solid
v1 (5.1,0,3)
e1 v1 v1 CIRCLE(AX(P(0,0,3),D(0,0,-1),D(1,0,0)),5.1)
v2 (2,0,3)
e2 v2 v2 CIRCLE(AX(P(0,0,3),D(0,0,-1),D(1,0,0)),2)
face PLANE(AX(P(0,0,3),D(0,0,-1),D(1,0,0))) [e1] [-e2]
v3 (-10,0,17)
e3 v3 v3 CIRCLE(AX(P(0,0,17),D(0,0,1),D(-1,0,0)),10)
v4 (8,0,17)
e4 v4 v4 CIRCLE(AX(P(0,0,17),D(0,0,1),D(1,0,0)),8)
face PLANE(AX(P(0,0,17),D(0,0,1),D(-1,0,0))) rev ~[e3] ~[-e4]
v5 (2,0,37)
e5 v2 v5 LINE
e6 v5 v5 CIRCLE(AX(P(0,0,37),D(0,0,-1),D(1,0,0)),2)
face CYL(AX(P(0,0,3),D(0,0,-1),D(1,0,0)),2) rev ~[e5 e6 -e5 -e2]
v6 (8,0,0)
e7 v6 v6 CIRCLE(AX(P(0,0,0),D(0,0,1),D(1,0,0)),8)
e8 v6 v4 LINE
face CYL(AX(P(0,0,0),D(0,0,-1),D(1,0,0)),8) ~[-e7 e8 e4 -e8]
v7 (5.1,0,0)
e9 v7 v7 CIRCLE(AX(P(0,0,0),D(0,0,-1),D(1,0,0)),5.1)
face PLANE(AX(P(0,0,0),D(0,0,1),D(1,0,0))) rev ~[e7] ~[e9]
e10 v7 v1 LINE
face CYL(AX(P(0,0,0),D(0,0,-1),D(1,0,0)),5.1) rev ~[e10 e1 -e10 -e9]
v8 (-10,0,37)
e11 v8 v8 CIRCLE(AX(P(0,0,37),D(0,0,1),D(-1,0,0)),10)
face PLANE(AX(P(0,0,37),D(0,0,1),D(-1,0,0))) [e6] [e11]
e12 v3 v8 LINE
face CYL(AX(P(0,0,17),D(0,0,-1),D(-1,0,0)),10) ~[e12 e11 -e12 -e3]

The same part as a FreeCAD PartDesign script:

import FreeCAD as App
import Part
import Sketcher
from FreeCAD import Vector
Q = App.Units.Quantity

doc = App.newDocument("Part")
params = doc.addObject("Spreadsheet::Sheet", "Params")
for row, (alias, value) in enumerate([
    ("sketch1_diameter", "16 mm"),
    ("pad1_length", "17 mm"),
    ("sketch2_diameter", "20 mm"),
    ("pad2_length", "20 mm"),
    ("sketch3_diameter", "10.2 mm"),
    ("pocket1_length", "3 mm"),
    ("sketch4_diameter", "4 mm"),
    ("pocket2_length", "34 mm"),
], start=1):
    params.set(f"A{row}", alias)
    params.set(f"B{row}", "=" + value)
    params.setAlias(f"B{row}", alias)

body = doc.addObject("PartDesign::Body", "Body")

# Sketch on XY plane
sketch1 = doc.addObject("Sketcher::SketchObject", "Sketch")
body.addObject(sketch1)
sketch1.AttachmentSupport = (doc.XY_Plane, [""])
sketch1.MapMode = "FlatFace"
sketch1.addGeometry(Part.Circle(Vector(0, 0, 0), Vector(0, 0, 1), 8), False)
sketch1.addConstraint(Sketcher.Constraint("Coincident", 0, 3, -1, 1))
sketch1.addConstraint(Sketcher.Constraint("Diameter", 0, Q("16 mm")))
sketch1.setExpression("Constraints[1]", "Params.sketch1_diameter")
pad1 = doc.addObject("PartDesign::Pad", "Pad")
body.addObject(pad1)
pad1.Profile = sketch1
pad1.setExpression("Length", "Params.pad1_length")

# Sketch on XY plane
sketch2 = doc.addObject("Sketcher::SketchObject", "Sketch001")
body.addObject(sketch2)
sketch2.AttachmentSupport = (doc.XY_Plane, [""])
sketch2.MapMode = "FlatFace"
sketch2.AttachmentOffset = App.Placement(Vector(0, 0, 17), App.Rotation())
sketch2.addGeometry(Part.Circle(Vector(0, 0, 0), Vector(0, 0, 1), 10), False)
sketch2.addConstraint(Sketcher.Constraint("Coincident", 0, 3, -1, 1))
sketch2.addConstraint(Sketcher.Constraint("Diameter", 0, Q("20 mm")))
sketch2.setExpression("Constraints[1]", "Params.sketch2_diameter")
pad2 = doc.addObject("PartDesign::Pad", "Pad001")
body.addObject(pad2)
pad2.Profile = sketch2
pad2.setExpression("Length", "Params.pad2_length")

# Sketch on XY plane
sketch3 = doc.addObject("Sketcher::SketchObject", "Sketch002")
body.addObject(sketch3)
sketch3.AttachmentSupport = (doc.XY_Plane, [""])
sketch3.MapMode = "FlatFace"
sketch3.addGeometry(Part.Circle(Vector(0, 0, 0), Vector(0, 0, 1), 5), False)
sketch3.addConstraint(Sketcher.Constraint("Coincident", 0, 3, -1, 1))
sketch3.addConstraint(Sketcher.Constraint("Diameter", 0, Q("10.2 mm")))
sketch3.setExpression("Constraints[1]", "Params.sketch3_diameter")
pocket1 = doc.addObject("PartDesign::Pocket", "Pocket")
body.addObject(pocket1)
pocket1.Profile = sketch3
pocket1.setExpression("Length", "Params.pocket1_length")
pocket1.Reversed = True

# Sketch on XY plane
sketch4 = doc.addObject("Sketcher::SketchObject", "Sketch003")
body.addObject(sketch4)
sketch4.AttachmentSupport = (doc.XY_Plane, [""])
sketch4.MapMode = "FlatFace"
sketch4.AttachmentOffset = App.Placement(Vector(0, 0, 3), App.Rotation())
sketch4.addGeometry(Part.Circle(Vector(0, 0, 0), Vector(0, 0, 1), 2), False)
sketch4.addConstraint(Sketcher.Constraint("Coincident", 0, 3, -1, 1))
sketch4.addConstraint(Sketcher.Constraint("Diameter", 0, Q("4 mm")))
sketch4.setExpression("Constraints[1]", "Params.sketch4_diameter")
pocket2 = doc.addObject("PartDesign::Pocket", "Pocket001")
body.addObject(pocket2)
pocket2.Profile = sketch4
pocket2.setExpression("Length", "Params.pocket2_length")
pocket2.Reversed = True

doc.recompute()
